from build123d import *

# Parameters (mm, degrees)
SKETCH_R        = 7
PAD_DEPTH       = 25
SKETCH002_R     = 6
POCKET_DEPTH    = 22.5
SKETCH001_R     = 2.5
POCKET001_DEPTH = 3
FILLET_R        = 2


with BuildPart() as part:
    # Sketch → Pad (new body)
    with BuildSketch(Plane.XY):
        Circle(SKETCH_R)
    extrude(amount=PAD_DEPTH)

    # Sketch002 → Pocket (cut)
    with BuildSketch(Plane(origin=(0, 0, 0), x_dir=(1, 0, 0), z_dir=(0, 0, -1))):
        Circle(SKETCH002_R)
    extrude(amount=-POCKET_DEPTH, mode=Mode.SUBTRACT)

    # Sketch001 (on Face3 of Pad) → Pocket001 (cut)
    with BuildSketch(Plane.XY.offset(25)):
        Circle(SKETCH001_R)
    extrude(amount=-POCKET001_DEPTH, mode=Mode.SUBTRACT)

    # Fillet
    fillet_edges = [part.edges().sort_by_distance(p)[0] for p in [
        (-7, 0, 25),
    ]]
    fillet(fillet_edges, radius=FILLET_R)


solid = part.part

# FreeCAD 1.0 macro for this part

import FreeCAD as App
import Part
import Sketcher
from FreeCAD import Vector


def edges_at(feature, points):
    """Names of the edges that pass closest to the given points."""
    edges = feature.Shape.Edges
    near = lambda p: min(range(len(edges)), key=lambda i: edges[i].distToShape(Part.Vertex(*p))[0])
    return sorted({f"Edge{near(p) + 1}" for p in points})

doc = App.newDocument("Part")
body = doc.addObject("PartDesign::Body", "Body")

sketch1 = body.newObject("Sketcher::SketchObject", "Sketch")
sketch1.AttachmentSupport = (doc.getObject("XY_Plane"), [""])
sketch1.MapMode = "FlatFace"
sketch1.addGeometry(Part.Circle(Vector(0, 0, 0), Vector(0, 0, 1), 7), False)
sketch1.addConstraint(Sketcher.Constraint("Coincident", 0, 3, -1, 1))
sketch1.addConstraint(Sketcher.Constraint("Diameter", 0, 14.0))
pad1 = body.newObject("PartDesign::Pad", "Pad")
pad1.Profile = sketch1
pad1.Length = 25

sketch2 = body.newObject("Sketcher::SketchObject", "Sketch001")
sketch2.AttachmentSupport = (doc.getObject("XY_Plane"), [""])
sketch2.MapMode = "FlatFace"
sketch2.addGeometry(Part.Circle(Vector(0, 0, 0), Vector(0, 0, 1), 6), False)
sketch2.addConstraint(Sketcher.Constraint("Coincident", 0, 3, -1, 1))
sketch2.addConstraint(Sketcher.Constraint("Diameter", 0, 12.0))
pocket1 = body.newObject("PartDesign::Pocket", "Pocket")
pocket1.Profile = sketch2
pocket1.Length = 22.5
pocket1.Reversed = True

sketch3 = body.newObject("Sketcher::SketchObject", "Sketch002")
sketch3.AttachmentSupport = (doc.getObject("XY_Plane"), [""])
sketch3.MapMode = "FlatFace"
sketch3.AttachmentOffset = App.Placement(Vector(0, 0, 25), App.Rotation())
sketch3.addGeometry(Part.Circle(Vector(0, 0, 0), Vector(0, 0, 1), 2.5), False)
sketch3.addConstraint(Sketcher.Constraint("Coincident", 0, 3, -1, 1))
sketch3.addConstraint(Sketcher.Constraint("Diameter", 0, 5.0))
pocket2 = body.newObject("PartDesign::Pocket", "Pocket001")
pocket2.Profile = sketch3
pocket2.Length = 3
doc.recompute()

fillet = body.newObject("PartDesign::Fillet", "Fillet")
fillet.Base = (pocket2, edges_at(pocket2, [(-7, 0, 25)]))
fillet.Radius = 2

doc.recompute()
